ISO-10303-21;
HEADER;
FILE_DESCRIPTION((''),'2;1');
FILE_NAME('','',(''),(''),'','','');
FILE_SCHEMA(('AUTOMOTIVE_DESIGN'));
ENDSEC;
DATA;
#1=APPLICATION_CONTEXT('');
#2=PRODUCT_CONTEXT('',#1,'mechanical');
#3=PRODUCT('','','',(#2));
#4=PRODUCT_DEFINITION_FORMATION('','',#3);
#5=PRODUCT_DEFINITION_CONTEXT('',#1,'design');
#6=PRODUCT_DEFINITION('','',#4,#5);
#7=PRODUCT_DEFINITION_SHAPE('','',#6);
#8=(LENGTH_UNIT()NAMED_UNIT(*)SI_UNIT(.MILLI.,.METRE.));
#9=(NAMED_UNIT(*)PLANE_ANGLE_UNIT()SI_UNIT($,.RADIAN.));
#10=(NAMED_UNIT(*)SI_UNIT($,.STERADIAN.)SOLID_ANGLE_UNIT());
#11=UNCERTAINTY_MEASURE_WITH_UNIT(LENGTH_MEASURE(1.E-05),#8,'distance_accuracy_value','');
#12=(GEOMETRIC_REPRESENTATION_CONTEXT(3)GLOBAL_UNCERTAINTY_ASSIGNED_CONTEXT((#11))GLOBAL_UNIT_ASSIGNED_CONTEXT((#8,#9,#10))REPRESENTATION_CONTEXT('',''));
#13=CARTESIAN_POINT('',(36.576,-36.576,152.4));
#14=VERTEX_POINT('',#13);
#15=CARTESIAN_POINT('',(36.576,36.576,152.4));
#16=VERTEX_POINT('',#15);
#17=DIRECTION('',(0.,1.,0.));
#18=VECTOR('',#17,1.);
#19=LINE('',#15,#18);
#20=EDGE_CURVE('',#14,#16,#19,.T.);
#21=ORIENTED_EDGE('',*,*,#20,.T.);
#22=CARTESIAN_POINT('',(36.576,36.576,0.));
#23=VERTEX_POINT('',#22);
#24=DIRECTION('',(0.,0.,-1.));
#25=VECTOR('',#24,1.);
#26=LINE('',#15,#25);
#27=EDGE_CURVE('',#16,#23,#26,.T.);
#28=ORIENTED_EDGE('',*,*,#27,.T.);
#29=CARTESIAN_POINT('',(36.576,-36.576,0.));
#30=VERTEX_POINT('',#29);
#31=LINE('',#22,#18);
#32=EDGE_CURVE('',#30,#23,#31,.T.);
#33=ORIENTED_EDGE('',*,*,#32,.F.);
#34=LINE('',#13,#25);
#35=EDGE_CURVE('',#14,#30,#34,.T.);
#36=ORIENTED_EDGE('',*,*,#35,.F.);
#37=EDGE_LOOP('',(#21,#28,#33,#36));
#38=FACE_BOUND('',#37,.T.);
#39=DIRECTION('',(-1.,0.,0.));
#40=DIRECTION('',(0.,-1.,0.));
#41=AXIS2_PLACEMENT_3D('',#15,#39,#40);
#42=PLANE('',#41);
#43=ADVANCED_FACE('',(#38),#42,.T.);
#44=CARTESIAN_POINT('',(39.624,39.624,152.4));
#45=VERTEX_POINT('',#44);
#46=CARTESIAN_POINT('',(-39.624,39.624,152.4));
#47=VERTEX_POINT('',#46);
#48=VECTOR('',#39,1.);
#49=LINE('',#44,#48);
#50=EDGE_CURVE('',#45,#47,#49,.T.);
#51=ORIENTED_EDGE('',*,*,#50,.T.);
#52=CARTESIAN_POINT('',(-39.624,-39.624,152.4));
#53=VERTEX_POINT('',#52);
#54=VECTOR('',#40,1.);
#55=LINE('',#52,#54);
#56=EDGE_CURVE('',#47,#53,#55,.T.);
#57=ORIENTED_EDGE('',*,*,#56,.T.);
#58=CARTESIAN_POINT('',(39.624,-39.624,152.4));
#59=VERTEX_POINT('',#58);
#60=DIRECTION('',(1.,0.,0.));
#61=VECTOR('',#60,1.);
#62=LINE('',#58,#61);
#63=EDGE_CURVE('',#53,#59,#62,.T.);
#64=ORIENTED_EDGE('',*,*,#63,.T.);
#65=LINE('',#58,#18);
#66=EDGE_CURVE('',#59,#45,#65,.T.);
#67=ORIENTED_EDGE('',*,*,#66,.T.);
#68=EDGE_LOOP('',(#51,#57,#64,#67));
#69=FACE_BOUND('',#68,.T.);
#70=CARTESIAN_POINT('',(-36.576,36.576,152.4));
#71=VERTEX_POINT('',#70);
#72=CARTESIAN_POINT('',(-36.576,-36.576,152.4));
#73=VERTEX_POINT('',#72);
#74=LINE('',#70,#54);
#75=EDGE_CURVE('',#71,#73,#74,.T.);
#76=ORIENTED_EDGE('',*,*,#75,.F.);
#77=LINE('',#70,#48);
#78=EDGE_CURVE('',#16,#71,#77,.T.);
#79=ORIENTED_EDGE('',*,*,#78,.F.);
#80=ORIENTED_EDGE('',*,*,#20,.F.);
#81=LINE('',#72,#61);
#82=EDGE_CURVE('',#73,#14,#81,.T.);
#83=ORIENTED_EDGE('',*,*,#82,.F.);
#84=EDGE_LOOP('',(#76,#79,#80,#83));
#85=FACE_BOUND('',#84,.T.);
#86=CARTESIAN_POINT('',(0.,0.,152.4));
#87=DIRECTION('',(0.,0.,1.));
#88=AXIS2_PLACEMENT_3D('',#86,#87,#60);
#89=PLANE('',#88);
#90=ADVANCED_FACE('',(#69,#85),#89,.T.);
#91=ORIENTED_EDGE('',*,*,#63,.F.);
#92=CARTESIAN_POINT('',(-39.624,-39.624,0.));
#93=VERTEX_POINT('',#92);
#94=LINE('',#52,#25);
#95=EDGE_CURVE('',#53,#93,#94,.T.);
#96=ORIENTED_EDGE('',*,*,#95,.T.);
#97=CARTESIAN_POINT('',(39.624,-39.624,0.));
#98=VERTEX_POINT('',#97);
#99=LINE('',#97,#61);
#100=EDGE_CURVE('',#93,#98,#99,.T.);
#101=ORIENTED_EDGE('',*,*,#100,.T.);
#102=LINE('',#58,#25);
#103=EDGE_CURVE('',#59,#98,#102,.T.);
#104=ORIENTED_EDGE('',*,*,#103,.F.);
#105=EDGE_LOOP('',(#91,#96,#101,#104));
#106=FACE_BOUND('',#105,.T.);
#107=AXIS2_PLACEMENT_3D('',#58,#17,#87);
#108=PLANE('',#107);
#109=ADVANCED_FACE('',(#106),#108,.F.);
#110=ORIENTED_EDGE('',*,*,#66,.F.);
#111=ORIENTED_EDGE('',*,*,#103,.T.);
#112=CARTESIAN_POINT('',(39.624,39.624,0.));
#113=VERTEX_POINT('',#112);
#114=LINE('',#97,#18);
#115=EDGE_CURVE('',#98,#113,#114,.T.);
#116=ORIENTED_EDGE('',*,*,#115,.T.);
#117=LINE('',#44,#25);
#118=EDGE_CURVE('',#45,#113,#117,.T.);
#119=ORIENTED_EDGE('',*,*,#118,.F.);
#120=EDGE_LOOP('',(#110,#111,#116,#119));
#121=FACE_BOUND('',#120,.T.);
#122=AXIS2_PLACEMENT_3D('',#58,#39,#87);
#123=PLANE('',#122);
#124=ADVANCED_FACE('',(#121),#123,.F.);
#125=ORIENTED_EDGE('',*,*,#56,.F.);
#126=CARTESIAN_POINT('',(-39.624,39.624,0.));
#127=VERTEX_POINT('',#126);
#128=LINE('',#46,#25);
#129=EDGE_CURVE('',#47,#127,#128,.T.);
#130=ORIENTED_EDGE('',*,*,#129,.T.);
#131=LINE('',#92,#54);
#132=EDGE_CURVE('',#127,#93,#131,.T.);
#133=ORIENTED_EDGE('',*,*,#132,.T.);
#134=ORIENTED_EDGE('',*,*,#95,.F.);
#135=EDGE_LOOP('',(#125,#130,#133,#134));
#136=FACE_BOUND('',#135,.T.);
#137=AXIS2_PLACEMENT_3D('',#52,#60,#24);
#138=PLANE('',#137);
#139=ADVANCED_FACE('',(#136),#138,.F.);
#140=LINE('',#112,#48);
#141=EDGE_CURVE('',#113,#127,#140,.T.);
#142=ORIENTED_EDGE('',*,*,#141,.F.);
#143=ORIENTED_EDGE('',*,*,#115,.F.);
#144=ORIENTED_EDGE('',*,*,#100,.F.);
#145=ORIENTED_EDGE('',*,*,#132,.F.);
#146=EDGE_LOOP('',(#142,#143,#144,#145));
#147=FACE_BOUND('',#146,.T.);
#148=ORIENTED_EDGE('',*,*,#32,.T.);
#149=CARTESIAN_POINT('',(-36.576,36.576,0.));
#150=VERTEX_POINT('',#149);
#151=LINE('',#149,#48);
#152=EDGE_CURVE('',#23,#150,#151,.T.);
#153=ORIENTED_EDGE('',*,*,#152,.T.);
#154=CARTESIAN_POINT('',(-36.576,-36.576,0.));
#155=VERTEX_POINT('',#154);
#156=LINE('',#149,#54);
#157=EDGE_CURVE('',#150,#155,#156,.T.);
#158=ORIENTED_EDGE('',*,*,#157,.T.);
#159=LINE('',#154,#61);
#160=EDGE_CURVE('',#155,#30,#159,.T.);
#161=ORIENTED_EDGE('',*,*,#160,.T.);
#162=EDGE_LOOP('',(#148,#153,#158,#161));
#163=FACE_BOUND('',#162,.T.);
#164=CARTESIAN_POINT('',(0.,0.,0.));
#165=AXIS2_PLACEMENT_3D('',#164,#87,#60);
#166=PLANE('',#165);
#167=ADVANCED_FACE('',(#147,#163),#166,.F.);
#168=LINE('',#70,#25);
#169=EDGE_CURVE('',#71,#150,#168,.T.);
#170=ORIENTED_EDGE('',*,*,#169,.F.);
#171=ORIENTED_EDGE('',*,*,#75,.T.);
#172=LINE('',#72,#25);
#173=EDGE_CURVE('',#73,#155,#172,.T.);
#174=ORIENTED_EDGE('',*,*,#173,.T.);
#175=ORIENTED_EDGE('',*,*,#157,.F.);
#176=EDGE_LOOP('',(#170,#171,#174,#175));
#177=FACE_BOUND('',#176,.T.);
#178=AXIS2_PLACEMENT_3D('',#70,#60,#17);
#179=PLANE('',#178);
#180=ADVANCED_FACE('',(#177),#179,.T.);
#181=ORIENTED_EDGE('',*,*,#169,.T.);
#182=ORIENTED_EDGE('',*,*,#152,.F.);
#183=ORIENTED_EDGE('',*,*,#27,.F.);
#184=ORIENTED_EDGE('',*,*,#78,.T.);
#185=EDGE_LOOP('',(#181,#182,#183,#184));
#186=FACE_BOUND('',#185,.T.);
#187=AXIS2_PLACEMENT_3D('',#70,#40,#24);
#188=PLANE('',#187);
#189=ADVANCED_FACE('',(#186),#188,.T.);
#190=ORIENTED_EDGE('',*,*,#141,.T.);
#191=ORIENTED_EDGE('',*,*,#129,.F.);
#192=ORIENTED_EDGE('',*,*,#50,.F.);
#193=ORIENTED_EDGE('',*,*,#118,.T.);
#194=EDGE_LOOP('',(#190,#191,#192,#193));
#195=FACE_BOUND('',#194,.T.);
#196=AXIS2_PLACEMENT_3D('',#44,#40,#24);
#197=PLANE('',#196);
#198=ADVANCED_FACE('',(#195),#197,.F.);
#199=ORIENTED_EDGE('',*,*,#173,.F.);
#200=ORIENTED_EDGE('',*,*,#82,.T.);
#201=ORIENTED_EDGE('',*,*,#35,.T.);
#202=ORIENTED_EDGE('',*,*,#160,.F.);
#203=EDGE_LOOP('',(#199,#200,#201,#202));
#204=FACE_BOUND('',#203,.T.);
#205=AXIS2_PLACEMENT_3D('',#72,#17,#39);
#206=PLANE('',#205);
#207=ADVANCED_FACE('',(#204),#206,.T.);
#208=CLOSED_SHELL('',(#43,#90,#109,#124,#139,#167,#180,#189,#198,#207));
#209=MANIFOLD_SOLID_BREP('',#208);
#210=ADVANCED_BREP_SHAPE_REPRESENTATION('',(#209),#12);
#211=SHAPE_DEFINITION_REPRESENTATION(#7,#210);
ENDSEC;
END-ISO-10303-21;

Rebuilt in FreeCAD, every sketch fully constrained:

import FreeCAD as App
import Part
import Sketcher

V = App.Vector
Q = App.Units.Quantity

doc = App.newDocument("Part")
params = doc.addObject("Spreadsheet::Sheet", "Params")
for row, (alias, value) in enumerate([
    ("sketch1_width", "3.12 in"),
    ("pad1_length", "6 in"),
], start=1):
    params.set(f"A{row}", alias)
    params.set(f"B{row}", "=" + value)
    params.setAlias(f"B{row}", alias)

body = doc.addObject("PartDesign::Body", "Body")

# Sketch on XY plane
sketch1 = body.newObject("Sketcher::SketchObject", "Sketch")
sketch1.AttachmentSupport = (doc.getObject("XY_Plane"), [""])
sketch1.MapMode = "FlatFace"
sketch1.addGeometry([
    Part.LineSegment(V(-39.624, 39.624, 0), V(-39.624, -39.624, 0)),  # 0
    Part.LineSegment(V(-39.624, -39.624, 0), V(39.624, -39.624, 0)),  # 1
    Part.LineSegment(V(39.624, -39.624, 0), V(39.624, 39.624, 0)),  # 2
    Part.LineSegment(V(39.624, 39.624, 0), V(-39.624, 39.624, 0)),  # 3
    Part.LineSegment(V(36.576, -36.576, 0), V(-36.576, -36.576, 0)),  # 4
    Part.LineSegment(V(-36.576, -36.576, 0), V(-36.576, 36.576, 0)),  # 5
    Part.LineSegment(V(-36.576, 36.576, 0), V(36.576, 36.576, 0)),  # 6
    Part.LineSegment(V(36.576, 36.576, 0), V(36.576, -36.576, 0)),  # 7
], False)
sketch1.addConstraint([
    Sketcher.Constraint("Coincident", 0, 2, 1, 1),
    Sketcher.Constraint("Coincident", 1, 2, 2, 1),
    Sketcher.Constraint("Coincident", 2, 2, 3, 1),
    Sketcher.Constraint("Coincident", 3, 2, 0, 1),
    Sketcher.Constraint("Coincident", 4, 2, 5, 1),
    Sketcher.Constraint("Coincident", 5, 2, 6, 1),
    Sketcher.Constraint("Coincident", 6, 2, 7, 1),
    Sketcher.Constraint("Coincident", 7, 2, 4, 1),
    Sketcher.Constraint("Vertical", 0),
    Sketcher.Constraint("Horizontal", 1),
    Sketcher.Constraint("Vertical", 2),
    Sketcher.Constraint("Horizontal", 3),
    Sketcher.Constraint("Horizontal", 4),
    Sketcher.Constraint("Vertical", 5),
    Sketcher.Constraint("Horizontal", 6),
    Sketcher.Constraint("Vertical", 7),
    Sketcher.Constraint("Symmetric", 0, 2, 2, 2, -1, 1),
    Sketcher.Constraint("Symmetric", 4, 2, 6, 2, -1, 1),
    Sketcher.Constraint("Equal", 3, 0),
    Sketcher.Constraint("Equal", 6, 5),
    Sketcher.Constraint("DistanceX", 4, 2, 1, 2, Q("3 in")),
    Sketcher.Constraint("DistanceX", 1, 1, 1, 2, Q("3.12 in")),
])
sketch1.setExpression("Constraints[21]", "Params.sketch1_width")
pad1 = body.newObject("PartDesign::Pad", "Pad")
pad1.Profile = sketch1
pad1.setExpression("Length", "Params.pad1_length")

doc.recompute()
